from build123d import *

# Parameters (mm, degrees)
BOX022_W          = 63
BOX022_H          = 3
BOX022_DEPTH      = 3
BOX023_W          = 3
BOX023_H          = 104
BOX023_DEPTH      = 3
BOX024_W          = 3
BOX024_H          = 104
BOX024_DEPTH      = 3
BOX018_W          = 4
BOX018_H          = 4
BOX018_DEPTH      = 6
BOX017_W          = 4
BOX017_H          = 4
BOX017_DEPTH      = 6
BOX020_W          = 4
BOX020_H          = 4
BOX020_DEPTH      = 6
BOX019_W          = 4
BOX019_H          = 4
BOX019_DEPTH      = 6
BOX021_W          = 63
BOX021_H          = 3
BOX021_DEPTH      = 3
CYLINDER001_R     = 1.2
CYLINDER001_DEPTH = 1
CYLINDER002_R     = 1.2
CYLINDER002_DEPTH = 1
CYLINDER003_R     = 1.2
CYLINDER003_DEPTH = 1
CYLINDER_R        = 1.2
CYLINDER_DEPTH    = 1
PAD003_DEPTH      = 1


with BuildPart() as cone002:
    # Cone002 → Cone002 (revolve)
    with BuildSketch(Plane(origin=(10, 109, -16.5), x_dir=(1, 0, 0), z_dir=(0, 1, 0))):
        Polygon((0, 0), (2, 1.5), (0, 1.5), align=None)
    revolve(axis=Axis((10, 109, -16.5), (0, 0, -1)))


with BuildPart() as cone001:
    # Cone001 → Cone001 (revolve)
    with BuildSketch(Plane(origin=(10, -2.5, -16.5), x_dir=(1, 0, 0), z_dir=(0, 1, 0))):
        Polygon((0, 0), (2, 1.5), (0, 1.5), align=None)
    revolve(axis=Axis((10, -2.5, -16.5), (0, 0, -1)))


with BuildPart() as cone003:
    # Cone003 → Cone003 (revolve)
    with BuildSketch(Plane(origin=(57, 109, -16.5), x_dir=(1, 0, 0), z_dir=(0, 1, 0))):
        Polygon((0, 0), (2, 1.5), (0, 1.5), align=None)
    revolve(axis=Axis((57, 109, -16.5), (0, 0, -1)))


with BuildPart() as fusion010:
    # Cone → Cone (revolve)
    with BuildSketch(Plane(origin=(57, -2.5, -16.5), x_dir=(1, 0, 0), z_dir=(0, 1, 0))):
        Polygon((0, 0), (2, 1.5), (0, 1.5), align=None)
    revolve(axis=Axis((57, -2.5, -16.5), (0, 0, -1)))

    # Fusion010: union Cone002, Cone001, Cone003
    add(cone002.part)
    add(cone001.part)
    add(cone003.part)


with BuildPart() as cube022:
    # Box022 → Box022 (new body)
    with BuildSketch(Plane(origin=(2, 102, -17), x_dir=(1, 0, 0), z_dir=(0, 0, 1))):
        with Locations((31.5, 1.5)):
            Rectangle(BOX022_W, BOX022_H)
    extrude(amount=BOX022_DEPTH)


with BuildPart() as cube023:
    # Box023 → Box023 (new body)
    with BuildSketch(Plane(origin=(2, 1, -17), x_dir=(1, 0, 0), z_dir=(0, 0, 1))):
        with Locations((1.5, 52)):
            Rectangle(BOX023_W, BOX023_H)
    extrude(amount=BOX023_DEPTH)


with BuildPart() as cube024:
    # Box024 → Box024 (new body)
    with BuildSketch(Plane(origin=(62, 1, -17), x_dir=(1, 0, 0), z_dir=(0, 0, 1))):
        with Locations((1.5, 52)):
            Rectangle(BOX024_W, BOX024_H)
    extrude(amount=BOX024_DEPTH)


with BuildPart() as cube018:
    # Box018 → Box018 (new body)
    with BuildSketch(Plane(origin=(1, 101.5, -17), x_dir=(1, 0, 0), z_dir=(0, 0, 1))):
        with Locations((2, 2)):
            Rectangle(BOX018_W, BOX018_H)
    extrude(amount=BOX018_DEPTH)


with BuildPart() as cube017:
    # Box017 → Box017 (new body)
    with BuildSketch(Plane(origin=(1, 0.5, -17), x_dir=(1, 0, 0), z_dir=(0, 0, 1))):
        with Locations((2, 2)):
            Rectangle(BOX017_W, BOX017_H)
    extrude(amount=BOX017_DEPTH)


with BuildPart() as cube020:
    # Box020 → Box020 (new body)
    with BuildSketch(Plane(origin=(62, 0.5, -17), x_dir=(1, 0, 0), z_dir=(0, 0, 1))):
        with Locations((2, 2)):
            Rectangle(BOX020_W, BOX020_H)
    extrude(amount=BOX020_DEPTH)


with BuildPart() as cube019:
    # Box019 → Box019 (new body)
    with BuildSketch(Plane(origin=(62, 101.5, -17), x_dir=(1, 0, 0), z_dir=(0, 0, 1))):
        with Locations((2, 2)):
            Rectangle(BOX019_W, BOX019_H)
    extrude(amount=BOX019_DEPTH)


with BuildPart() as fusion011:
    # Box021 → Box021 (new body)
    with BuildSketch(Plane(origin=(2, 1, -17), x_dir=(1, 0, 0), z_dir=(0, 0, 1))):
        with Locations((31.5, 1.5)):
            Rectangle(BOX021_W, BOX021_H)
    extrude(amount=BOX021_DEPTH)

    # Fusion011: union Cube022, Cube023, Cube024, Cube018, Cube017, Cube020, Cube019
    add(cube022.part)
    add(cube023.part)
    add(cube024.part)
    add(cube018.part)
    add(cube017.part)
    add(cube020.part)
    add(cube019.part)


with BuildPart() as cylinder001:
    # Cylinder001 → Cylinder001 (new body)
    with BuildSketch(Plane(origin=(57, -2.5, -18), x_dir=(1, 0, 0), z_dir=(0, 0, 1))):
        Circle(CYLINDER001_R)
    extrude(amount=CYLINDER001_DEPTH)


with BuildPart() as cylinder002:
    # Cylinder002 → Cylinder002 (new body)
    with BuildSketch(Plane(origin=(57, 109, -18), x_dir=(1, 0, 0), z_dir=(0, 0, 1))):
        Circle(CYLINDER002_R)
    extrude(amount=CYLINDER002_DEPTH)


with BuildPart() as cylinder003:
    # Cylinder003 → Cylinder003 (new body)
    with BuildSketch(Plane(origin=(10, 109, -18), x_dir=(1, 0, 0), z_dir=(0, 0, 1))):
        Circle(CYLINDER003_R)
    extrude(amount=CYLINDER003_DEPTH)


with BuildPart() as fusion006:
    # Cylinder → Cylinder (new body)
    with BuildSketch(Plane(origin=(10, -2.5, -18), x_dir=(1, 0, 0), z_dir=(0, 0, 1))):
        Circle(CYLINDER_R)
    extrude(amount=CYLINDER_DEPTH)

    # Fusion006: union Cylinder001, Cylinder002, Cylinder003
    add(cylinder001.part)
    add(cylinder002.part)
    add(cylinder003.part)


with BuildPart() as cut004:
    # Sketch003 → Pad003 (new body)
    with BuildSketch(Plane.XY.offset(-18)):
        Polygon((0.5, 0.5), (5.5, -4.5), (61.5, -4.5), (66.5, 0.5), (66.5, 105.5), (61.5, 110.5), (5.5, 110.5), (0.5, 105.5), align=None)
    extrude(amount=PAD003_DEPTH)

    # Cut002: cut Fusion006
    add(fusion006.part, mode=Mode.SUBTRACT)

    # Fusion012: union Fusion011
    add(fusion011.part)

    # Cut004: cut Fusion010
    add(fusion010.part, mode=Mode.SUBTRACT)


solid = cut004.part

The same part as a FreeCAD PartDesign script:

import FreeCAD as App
import Part
import Sketcher

V = App.Vector
Q = App.Units.Quantity

doc = App.newDocument("Part")
body = doc.addObject("PartDesign::Body", "Body")

sketch1 = body.newObject("Sketcher::SketchObject", "Sketch")
sketch1.AttachmentSupport = (doc.getObject("XZ_Plane"), [""])
sketch1.MapMode = "FlatFace"
sketch1.AttachmentOffset = App.Placement(V(0, 0, -109), App.Rotation())
sketch1.addGeometry(Part.LineSegment(V(10, -16.5, 0), V(12, -18, 0)), False)
sketch1.addGeometry(Part.LineSegment(V(12, -18, 0), V(10, -18, 0)), False)
sketch1.addGeometry(Part.LineSegment(V(10, -18, 0), V(10, -16.5, 0)), False)
sketch1.addGeometry(Part.LineSegment(V(10, -16.5, 0), V(10, -18, 0)), True)
sketch1.addConstraint(Sketcher.Constraint("Coincident", 0, 2, 1, 1))
sketch1.addConstraint(Sketcher.Constraint("Coincident", 1, 2, 2, 1))
sketch1.addConstraint(Sketcher.Constraint("Coincident", 2, 2, 0, 1))
sketch1.addConstraint(Sketcher.Constraint("Horizontal", 1))
sketch1.addConstraint(Sketcher.Constraint("Vertical", 2))
sketch1.addConstraint(Sketcher.Constraint("Vertical", 3))
sketch1.addConstraint(Sketcher.Constraint("Coincident", 3, 1, 2, 2))
sketch1.addConstraint(Sketcher.Constraint("Horizontal", 0, 2, 3, 2))
sketch1.addConstraint(Sketcher.Constraint("DistanceX", 1, 2, 1, 1, Q("2 mm")))
sketch1.addConstraint(Sketcher.Constraint("DistanceY", 2, 1, 2, 2, Q("1.5 mm")))
sketch1.addConstraint(Sketcher.Constraint("DistanceX", -1, 1, 0, 2, Q("12 mm")))
sketch1.addConstraint(Sketcher.Constraint("DistanceY", 0, 2, -1, 1, Q("18 mm")))
revolution = body.newObject("PartDesign::Revolution", "Revolution")
revolution.Profile = sketch1
revolution.ReferenceAxis = (sketch1, ["Axis0"])
revolution.Angle = 360
body2 = doc.addObject("PartDesign::Body", "Body001")

sketch2 = body2.newObject("Sketcher::SketchObject", "Sketch001")
sketch2.AttachmentSupport = (doc.getObject("XZ_Plane001"), [""])
sketch2.MapMode = "FlatFace"
sketch2.AttachmentOffset = App.Placement(V(0, 0, 2.5), App.Rotation())
sketch2.addGeometry(Part.LineSegment(V(10, -16.5, 0), V(12, -18, 0)), False)
sketch2.addGeometry(Part.LineSegment(V(12, -18, 0), V(10, -18, 0)), False)
sketch2.addGeometry(Part.LineSegment(V(10, -18, 0), V(10, -16.5, 0)), False)
sketch2.addGeometry(Part.LineSegment(V(10, -16.5, 0), V(10, -18, 0)), True)
sketch2.addConstraint(Sketcher.Constraint("Coincident", 0, 2, 1, 1))
sketch2.addConstraint(Sketcher.Constraint("Coincident", 1, 2, 2, 1))
sketch2.addConstraint(Sketcher.Constraint("Coincident", 2, 2, 0, 1))
sketch2.addConstraint(Sketcher.Constraint("Horizontal", 1))
sketch2.addConstraint(Sketcher.Constraint("Vertical", 2))
sketch2.addConstraint(Sketcher.Constraint("Vertical", 3))
sketch2.addConstraint(Sketcher.Constraint("Coincident", 3, 1, 2, 2))
sketch2.addConstraint(Sketcher.Constraint("Horizontal", 0, 2, 3, 2))
sketch2.addConstraint(Sketcher.Constraint("DistanceX", 1, 2, 1, 1, Q("2 mm")))
sketch2.addConstraint(Sketcher.Constraint("DistanceY", 2, 1, 2, 2, Q("1.5 mm")))
sketch2.addConstraint(Sketcher.Constraint("DistanceX", -1, 1, 0, 2, Q("12 mm")))
sketch2.addConstraint(Sketcher.Constraint("DistanceY", 0, 2, -1, 1, Q("18 mm")))
revolution2 = body2.newObject("PartDesign::Revolution", "Revolution001")
revolution2.Profile = sketch2
revolution2.ReferenceAxis = (sketch2, ["Axis0"])
revolution2.Angle = 360
body3 = doc.addObject("PartDesign::Body", "Body002")

sketch3 = body3.newObject("Sketcher::SketchObject", "Sketch002")
sketch3.AttachmentSupport = (doc.getObject("XZ_Plane002"), [""])
sketch3.MapMode = "FlatFace"
sketch3.AttachmentOffset = App.Placement(V(0, 0, -109), App.Rotation())
sketch3.addGeometry(Part.LineSegment(V(57, -16.5, 0), V(59, -18, 0)), False)
sketch3.addGeometry(Part.LineSegment(V(59, -18, 0), V(57, -18, 0)), False)
sketch3.addGeometry(Part.LineSegment(V(57, -18, 0), V(57, -16.5, 0)), False)
sketch3.addGeometry(Part.LineSegment(V(57, -16.5, 0), V(57, -18, 0)), True)
sketch3.addConstraint(Sketcher.Constraint("Coincident", 0, 2, 1, 1))
sketch3.addConstraint(Sketcher.Constraint("Coincident", 1, 2, 2, 1))
sketch3.addConstraint(Sketcher.Constraint("Coincident", 2, 2, 0, 1))
sketch3.addConstraint(Sketcher.Constraint("Horizontal", 1))
sketch3.addConstraint(Sketcher.Constraint("Vertical", 2))
sketch3.addConstraint(Sketcher.Constraint("Vertical", 3))
sketch3.addConstraint(Sketcher.Constraint("Coincident", 3, 1, 2, 2))
sketch3.addConstraint(Sketcher.Constraint("Horizontal", 0, 2, 3, 2))
sketch3.addConstraint(Sketcher.Constraint("DistanceX", 1, 2, 1, 1, Q("2 mm")))
sketch3.addConstraint(Sketcher.Constraint("DistanceY", 2, 1, 2, 2, Q("1.5 mm")))
sketch3.addConstraint(Sketcher.Constraint("DistanceX", -1, 1, 0, 2, Q("59 mm")))
sketch3.addConstraint(Sketcher.Constraint("DistanceY", 0, 2, -1, 1, Q("18 mm")))
revolution3 = body3.newObject("PartDesign::Revolution", "Revolution002")
revolution3.Profile = sketch3
revolution3.ReferenceAxis = (sketch3, ["Axis0"])
revolution3.Angle = 360
body4 = doc.addObject("PartDesign::Body", "Body003")
body4.AllowCompound = True

sketch4 = body4.newObject("Sketcher::SketchObject", "Sketch003")
sketch4.AttachmentSupport = (doc.getObject("XZ_Plane003"), [""])
sketch4.MapMode = "FlatFace"
sketch4.AttachmentOffset = App.Placement(V(0, 0, 2.5), App.Rotation())
sketch4.addGeometry(Part.LineSegment(V(57, -16.5, 0), V(59, -18, 0)), False)
sketch4.addGeometry(Part.LineSegment(V(59, -18, 0), V(57, -18, 0)), False)
sketch4.addGeometry(Part.LineSegment(V(57, -18, 0), V(57, -16.5, 0)), False)
sketch4.addGeometry(Part.LineSegment(V(57, -16.5, 0), V(57, -18, 0)), True)
sketch4.addConstraint(Sketcher.Constraint("Coincident", 0, 2, 1, 1))
sketch4.addConstraint(Sketcher.Constraint("Coincident", 1, 2, 2, 1))
sketch4.addConstraint(Sketcher.Constraint("Coincident", 2, 2, 0, 1))
sketch4.addConstraint(Sketcher.Constraint("Horizontal", 1))
sketch4.addConstraint(Sketcher.Constraint("Vertical", 2))
sketch4.addConstraint(Sketcher.Constraint("Vertical", 3))
sketch4.addConstraint(Sketcher.Constraint("Coincident", 3, 1, 2, 2))
sketch4.addConstraint(Sketcher.Constraint("Horizontal", 0, 2, 3, 2))
sketch4.addConstraint(Sketcher.Constraint("DistanceX", 1, 2, 1, 1, Q("2 mm")))
sketch4.addConstraint(Sketcher.Constraint("DistanceY", 2, 1, 2, 2, Q("1.5 mm")))
sketch4.addConstraint(Sketcher.Constraint("DistanceX", -1, 1, 0, 2, Q("59 mm")))
sketch4.addConstraint(Sketcher.Constraint("DistanceY", 0, 2, -1, 1, Q("18 mm")))
revolution4 = body4.newObject("PartDesign::Revolution", "Revolution003")
revolution4.Profile = sketch4
revolution4.ReferenceAxis = (sketch4, ["Axis0"])
revolution4.Angle = 360
doc.recompute()

boolean = body4.newObject("PartDesign::Boolean", "Boolean")
boolean.Type = "Fuse"
boolean.addObjects([body])
doc.recompute()

boolean2 = body4.newObject("PartDesign::Boolean", "Boolean001")
boolean2.Type = "Fuse"
boolean2.addObjects([body2])
doc.recompute()

boolean3 = body4.newObject("PartDesign::Boolean", "Boolean002")
boolean3.Type = "Fuse"
boolean3.addObjects([body3])
body5 = doc.addObject("PartDesign::Body", "Body004")

sketch5 = body5.newObject("Sketcher::SketchObject", "Sketch004")
sketch5.AttachmentSupport = (doc.getObject("XY_Plane004"), [""])
sketch5.MapMode = "FlatFace"
sketch5.AttachmentOffset = App.Placement(V(0, 0, -17), App.Rotation())
sketch5.addGeometry(Part.LineSegment(V(2, 105, 0), V(2, 102, 0)), False)
sketch5.addGeometry(Part.LineSegment(V(2, 102, 0), V(65, 102, 0)), False)
sketch5.addGeometry(Part.LineSegment(V(65, 102, 0), V(65, 105, 0)), False)
sketch5.addGeometry(Part.LineSegment(V(65, 105, 0), V(2, 105, 0)), False)
sketch5.addConstraint(Sketcher.Constraint("Coincident", 0, 2, 1, 1))
sketch5.addConstraint(Sketcher.Constraint("Coincident", 1, 2, 2, 1))
sketch5.addConstraint(Sketcher.Constraint("Coincident", 2, 2, 3, 1))
sketch5.addConstraint(Sketcher.Constraint("Coincident", 3, 2, 0, 1))
sketch5.addConstraint(Sketcher.Constraint("Vertical", 0))
sketch5.addConstraint(Sketcher.Constraint("Horizontal", 1))
sketch5.addConstraint(Sketcher.Constraint("Vertical", 2))
sketch5.addConstraint(Sketcher.Constraint("Horizontal", 3))
sketch5.addConstraint(Sketcher.Constraint("DistanceX", 1, 1, 1, 2, Q("63 mm")))
sketch5.addConstraint(Sketcher.Constraint("DistanceY", 0, 2, 0, 1, Q("3 mm")))
sketch5.addConstraint(Sketcher.Constraint("DistanceX", -1, 1, 0, 2, Q("2 mm")))
sketch5.addConstraint(Sketcher.Constraint("DistanceY", -1, 1, 0, 2, Q("102 mm")))
pad1 = body5.newObject("PartDesign::Pad", "Pad")
pad1.Profile = sketch5
pad1.Length = 3
body6 = doc.addObject("PartDesign::Body", "Body005")

sketch6 = body6.newObject("Sketcher::SketchObject", "Sketch005")
sketch6.AttachmentSupport = (doc.getObject("XY_Plane005"), [""])
sketch6.MapMode = "FlatFace"
sketch6.AttachmentOffset = App.Placement(V(0, 0, -17), App.Rotation())
sketch6.addGeometry(Part.LineSegment(V(2, 105, 0), V(2, 1, 0)), False)
sketch6.addGeometry(Part.LineSegment(V(2, 1, 0), V(5, 1, 0)), False)
sketch6.addGeometry(Part.LineSegment(V(5, 1, 0), V(5, 105, 0)), False)
sketch6.addGeometry(Part.LineSegment(V(5, 105, 0), V(2, 105, 0)), False)
sketch6.addConstraint(Sketcher.Constraint("Coincident", 0, 2, 1, 1))
sketch6.addConstraint(Sketcher.Constraint("Coincident", 1, 2, 2, 1))
sketch6.addConstraint(Sketcher.Constraint("Coincident", 2, 2, 3, 1))
sketch6.addConstraint(Sketcher.Constraint("Coincident", 3, 2, 0, 1))
sketch6.addConstraint(Sketcher.Constraint("Vertical", 0))
sketch6.addConstraint(Sketcher.Constraint("Horizontal", 1))
sketch6.addConstraint(Sketcher.Constraint("Vertical", 2))
sketch6.addConstraint(Sketcher.Constraint("Horizontal", 3))
sketch6.addConstraint(Sketcher.Constraint("DistanceX", 1, 1, 1, 2, Q("3 mm")))
sketch6.addConstraint(Sketcher.Constraint("DistanceY", 0, 2, 0, 1, Q("104 mm")))
sketch6.addConstraint(Sketcher.Constraint("DistanceX", -1, 1, 0, 2, Q("2 mm")))
sketch6.addConstraint(Sketcher.Constraint("DistanceY", -1, 1, 0, 2, Q("1 mm")))
pad2 = body6.newObject("PartDesign::Pad", "Pad001")
pad2.Profile = sketch6
pad2.Length = 3
body7 = doc.addObject("PartDesign::Body", "Body006")

sketch7 = body7.newObject("Sketcher::SketchObject", "Sketch006")
sketch7.AttachmentSupport = (doc.getObject("XY_Plane006"), [""])
sketch7.MapMode = "FlatFace"
sketch7.AttachmentOffset = App.Placement(V(0, 0, -17), App.Rotation())
sketch7.addGeometry(Part.LineSegment(V(62, 105, 0), V(62, 1, 0)), False)
sketch7.addGeometry(Part.LineSegment(V(62, 1, 0), V(65, 1, 0)), False)
sketch7.addGeometry(Part.LineSegment(V(65, 1, 0), V(65, 105, 0)), False)
sketch7.addGeometry(Part.LineSegment(V(65, 105, 0), V(62, 105, 0)), False)
sketch7.addConstraint(Sketcher.Constraint("Coincident", 0, 2, 1, 1))
sketch7.addConstraint(Sketcher.Constraint("Coincident", 1, 2, 2, 1))
sketch7.addConstraint(Sketcher.Constraint("Coincident", 2, 2, 3, 1))
sketch7.addConstraint(Sketcher.Constraint("Coincident", 3, 2, 0, 1))
sketch7.addConstraint(Sketcher.Constraint("Vertical", 0))
sketch7.addConstraint(Sketcher.Constraint("Horizontal", 1))
sketch7.addConstraint(Sketcher.Constraint("Vertical", 2))
sketch7.addConstraint(Sketcher.Constraint("Horizontal", 3))
sketch7.addConstraint(Sketcher.Constraint("DistanceX", 1, 1, 1, 2, Q("3 mm")))
sketch7.addConstraint(Sketcher.Constraint("DistanceY", 0, 2, 0, 1, Q("104 mm")))
sketch7.addConstraint(Sketcher.Constraint("DistanceX", -1, 1, 0, 2, Q("62 mm")))
sketch7.addConstraint(Sketcher.Constraint("DistanceY", -1, 1, 0, 2, Q("1 mm")))
pad3 = body7.newObject("PartDesign::Pad", "Pad002")
pad3.Profile = sketch7
pad3.Length = 3
body8 = doc.addObject("PartDesign::Body", "Body007")

sketch8 = body8.newObject("Sketcher::SketchObject", "Sketch007")
sketch8.AttachmentSupport = (doc.getObject("XY_Plane007"), [""])
sketch8.MapMode = "FlatFace"
sketch8.AttachmentOffset = App.Placement(V(0, 0, -17), App.Rotation())
sketch8.addGeometry(Part.LineSegment(V(1, 105.5, 0), V(1, 101.5, 0)), False)
sketch8.addGeometry(Part.LineSegment(V(1, 101.5, 0), V(5, 101.5, 0)), False)
sketch8.addGeometry(Part.LineSegment(V(5, 101.5, 0), V(5, 105.5, 0)), False)
sketch8.addGeometry(Part.LineSegment(V(5, 105.5, 0), V(1, 105.5, 0)), False)
sketch8.addConstraint(Sketcher.Constraint("Coincident", 0, 2, 1, 1))
sketch8.addConstraint(Sketcher.Constraint("Coincident", 1, 2, 2, 1))
sketch8.addConstraint(Sketcher.Constraint("Coincident", 2, 2, 3, 1))
sketch8.addConstraint(Sketcher.Constraint("Coincident", 3, 2, 0, 1))
sketch8.addConstraint(Sketcher.Constraint("Vertical", 0))
sketch8.addConstraint(Sketcher.Constraint("Horizontal", 1))
sketch8.addConstraint(Sketcher.Constraint("Vertical", 2))
sketch8.addConstraint(Sketcher.Constraint("Horizontal", 3))
sketch8.addConstraint(Sketcher.Constraint("Equal", 3, 0))
sketch8.addConstraint(Sketcher.Constraint("DistanceX", 1, 1, 1, 2, Q("4 mm")))
sketch8.addConstraint(Sketcher.Constraint("DistanceX", -1, 1, 0, 2, Q("1 mm")))
sketch8.addConstraint(Sketcher.Constraint("DistanceY", -1, 1, 0, 2, Q("101.5 mm")))
pad4 = body8.newObject("PartDesign::Pad", "Pad003")
pad4.Profile = sketch8
pad4.Length = 6
body9 = doc.addObject("PartDesign::Body", "Body008")

sketch9 = body9.newObject("Sketcher::SketchObject", "Sketch008")
sketch9.AttachmentSupport = (doc.getObject("XY_Plane008"), [""])
sketch9.MapMode = "FlatFace"
sketch9.AttachmentOffset = App.Placement(V(0, 0, -17), App.Rotation())
sketch9.addGeometry(Part.LineSegment(V(1, 4.5, 0), V(1, 0.5, 0)), False)
sketch9.addGeometry(Part.LineSegment(V(1, 0.5, 0), V(5, 0.5, 0)), False)
sketch9.addGeometry(Part.LineSegment(V(5, 0.5, 0), V(5, 4.5, 0)), False)
sketch9.addGeometry(Part.LineSegment(V(5, 4.5, 0), V(1, 4.5, 0)), False)
sketch9.addConstraint(Sketcher.Constraint("Coincident", 0, 2, 1, 1))
sketch9.addConstraint(Sketcher.Constraint("Coincident", 1, 2, 2, 1))
sketch9.addConstraint(Sketcher.Constraint("Coincident", 2, 2, 3, 1))
sketch9.addConstraint(Sketcher.Constraint("Coincident", 3, 2, 0, 1))
sketch9.addConstraint(Sketcher.Constraint("Vertical", 0))
sketch9.addConstraint(Sketcher.Constraint("Horizontal", 1))
sketch9.addConstraint(Sketcher.Constraint("Vertical", 2))
sketch9.addConstraint(Sketcher.Constraint("Horizontal", 3))
sketch9.addConstraint(Sketcher.Constraint("Equal", 3, 0))
sketch9.addConstraint(Sketcher.Constraint("DistanceX", 1, 1, 1, 2, Q("4 mm")))
sketch9.addConstraint(Sketcher.Constraint("DistanceX", -1, 1, 0, 2, Q("1 mm")))
sketch9.addConstraint(Sketcher.Constraint("DistanceY", -1, 1, 0, 2, Q("0.5 mm")))
pad5 = body9.newObject("PartDesign::Pad", "Pad004")
pad5.Profile = sketch9
pad5.Length = 6
body10 = doc.addObject("PartDesign::Body", "Body009")

sketch10 = body10.newObject("Sketcher::SketchObject", "Sketch009")
sketch10.AttachmentSupport = (doc.getObject("XY_Plane009"), [""])
sketch10.MapMode = "FlatFace"
sketch10.AttachmentOffset = App.Placement(V(0, 0, -17), App.Rotation())
sketch10.addGeometry(Part.LineSegment(V(62, 4.5, 0), V(62, 0.5, 0)), False)
sketch10.addGeometry(Part.LineSegment(V(62, 0.5, 0), V(66, 0.5, 0)), False)
sketch10.addGeometry(Part.LineSegment(V(66, 0.5, 0), V(66, 4.5, 0)), False)
sketch10.addGeometry(Part.LineSegment(V(66, 4.5, 0), V(62, 4.5, 0)), False)
sketch10.addConstraint(Sketcher.Constraint("Coincident", 0, 2, 1, 1))
sketch10.addConstraint(Sketcher.Constraint("Coincident", 1, 2, 2, 1))
sketch10.addConstraint(Sketcher.Constraint("Coincident", 2, 2, 3, 1))
sketch10.addConstraint(Sketcher.Constraint("Coincident", 3, 2, 0, 1))
sketch10.addConstraint(Sketcher.Constraint("Vertical", 0))
sketch10.addConstraint(Sketcher.Constraint("Horizontal", 1))
sketch10.addConstraint(Sketcher.Constraint("Vertical", 2))
sketch10.addConstraint(Sketcher.Constraint("Horizontal", 3))
sketch10.addConstraint(Sketcher.Constraint("Equal", 3, 0))
sketch10.addConstraint(Sketcher.Constraint("DistanceX", 1, 1, 1, 2, Q("4 mm")))
sketch10.addConstraint(Sketcher.Constraint("DistanceX", -1, 1, 0, 2, Q("62 mm")))
sketch10.addConstraint(Sketcher.Constraint("DistanceY", -1, 1, 0, 2, Q("0.5 mm")))
pad6 = body10.newObject("PartDesign::Pad", "Pad005")
pad6.Profile = sketch10
pad6.Length = 6
body11 = doc.addObject("PartDesign::Body", "Body010")

sketch11 = body11.newObject("Sketcher::SketchObject", "Sketch010")
sketch11.AttachmentSupport = (doc.getObject("XY_Plane010"), [""])
sketch11.MapMode = "FlatFace"
sketch11.AttachmentOffset = App.Placement(V(0, 0, -17), App.Rotation())
sketch11.addGeometry(Part.LineSegment(V(62, 105.5, 0), V(62, 101.5, 0)), False)
sketch11.addGeometry(Part.LineSegment(V(62, 101.5, 0), V(66, 101.5, 0)), False)
sketch11.addGeometry(Part.LineSegment(V(66, 101.5, 0), V(66, 105.5, 0)), False)
sketch11.addGeometry(Part.LineSegment(V(66, 105.5, 0), V(62, 105.5, 0)), False)
sketch11.addConstraint(Sketcher.Constraint("Coincident", 0, 2, 1, 1))
sketch11.addConstraint(Sketcher.Constraint("Coincident", 1, 2, 2, 1))
sketch11.addConstraint(Sketcher.Constraint("Coincident", 2, 2, 3, 1))
sketch11.addConstraint(Sketcher.Constraint("Coincident", 3, 2, 0, 1))
sketch11.addConstraint(Sketcher.Constraint("Vertical", 0))
sketch11.addConstraint(Sketcher.Constraint("Horizontal", 1))
sketch11.addConstraint(Sketcher.Constraint("Vertical", 2))
sketch11.addConstraint(Sketcher.Constraint("Horizontal", 3))
sketch11.addConstraint(Sketcher.Constraint("Equal", 3, 0))
sketch11.addConstraint(Sketcher.Constraint("DistanceX", 1, 1, 1, 2, Q("4 mm")))
sketch11.addConstraint(Sketcher.Constraint("DistanceX", -1, 1, 0, 2, Q("62 mm")))
sketch11.addConstraint(Sketcher.Constraint("DistanceY", -1, 1, 0, 2, Q("101.5 mm")))
pad7 = body11.newObject("PartDesign::Pad", "Pad006")
pad7.Profile = sketch11
pad7.Length = 6
body12 = doc.addObject("PartDesign::Body", "Body011")
body12.AllowCompound = True

sketch12 = body12.newObject("Sketcher::SketchObject", "Sketch011")
sketch12.AttachmentSupport = (doc.getObject("XY_Plane011"), [""])
sketch12.MapMode = "FlatFace"
sketch12.AttachmentOffset = App.Placement(V(0, 0, -17), App.Rotation())
sketch12.addGeometry(Part.LineSegment(V(2, 4, 0), V(2, 1, 0)), False)
sketch12.addGeometry(Part.LineSegment(V(2, 1, 0), V(65, 1, 0)), False)
sketch12.addGeometry(Part.LineSegment(V(65, 1, 0), V(65, 4, 0)), False)
sketch12.addGeometry(Part.LineSegment(V(65, 4, 0), V(2, 4, 0)), False)
sketch12.addConstraint(Sketcher.Constraint("Coincident", 0, 2, 1, 1))
sketch12.addConstraint(Sketcher.Constraint("Coincident", 1, 2, 2, 1))
sketch12.addConstraint(Sketcher.Constraint("Coincident", 2, 2, 3, 1))
sketch12.addConstraint(Sketcher.Constraint("Coincident", 3, 2, 0, 1))
sketch12.addConstraint(Sketcher.Constraint("Vertical", 0))
sketch12.addConstraint(Sketcher.Constraint("Horizontal", 1))
sketch12.addConstraint(Sketcher.Constraint("Vertical", 2))
sketch12.addConstraint(Sketcher.Constraint("Horizontal", 3))
sketch12.addConstraint(Sketcher.Constraint("DistanceX", 1, 1, 1, 2, Q("63 mm")))
sketch12.addConstraint(Sketcher.Constraint("DistanceY", 0, 2, 0, 1, Q("3 mm")))
sketch12.addConstraint(Sketcher.Constraint("DistanceX", -1, 1, 0, 2, Q("2 mm")))
sketch12.addConstraint(Sketcher.Constraint("DistanceY", -1, 1, 0, 2, Q("1 mm")))
pad8 = body12.newObject("PartDesign::Pad", "Pad007")
pad8.Profile = sketch12
pad8.Length = 3
doc.recompute()

boolean4 = body12.newObject("PartDesign::Boolean", "Boolean003")
boolean4.Type = "Fuse"
boolean4.addObjects([body5])
doc.recompute()

boolean5 = body12.newObject("PartDesign::Boolean", "Boolean004")
boolean5.Type = "Fuse"
boolean5.addObjects([body6])
doc.recompute()

boolean6 = body12.newObject("PartDesign::Boolean", "Boolean005")
boolean6.Type = "Fuse"
boolean6.addObjects([body7])
doc.recompute()

boolean7 = body12.newObject("PartDesign::Boolean", "Boolean006")
boolean7.Type = "Fuse"
boolean7.addObjects([body8])
doc.recompute()

boolean8 = body12.newObject("PartDesign::Boolean", "Boolean007")
boolean8.Type = "Fuse"
boolean8.addObjects([body9])
doc.recompute()

boolean9 = body12.newObject("PartDesign::Boolean", "Boolean008")
boolean9.Type = "Fuse"
boolean9.addObjects([body10])
doc.recompute()

boolean10 = body12.newObject("PartDesign::Boolean", "Boolean009")
boolean10.Type = "Fuse"
boolean10.addObjects([body11])
body13 = doc.addObject("PartDesign::Body", "Body012")

sketch13 = body13.newObject("Sketcher::SketchObject", "Sketch012")
sketch13.AttachmentSupport = (doc.getObject("XY_Plane012"), [""])
sketch13.MapMode = "FlatFace"
sketch13.AttachmentOffset = App.Placement(V(0, 0, -18), App.Rotation())
sketch13.addGeometry(Part.Circle(V(57, -2.5, 0), V(0, 0, 1), 1.2), False)
sketch13.addConstraint(Sketcher.Constraint("Diameter", 0, Q("2.4 mm")))
sketch13.addConstraint(Sketcher.Constraint("DistanceX", -1, 1, 0, 3, Q("57 mm")))
sketch13.addConstraint(Sketcher.Constraint("DistanceY", 0, 3, -1, 1, Q("2.5 mm")))
pad9 = body13.newObject("PartDesign::Pad", "Pad008")
pad9.Profile = sketch13
pad9.Length = 1
body14 = doc.addObject("PartDesign::Body", "Body013")

sketch14 = body14.newObject("Sketcher::SketchObject", "Sketch013")
sketch14.AttachmentSupport = (doc.getObject("XY_Plane013"), [""])
sketch14.MapMode = "FlatFace"
sketch14.AttachmentOffset = App.Placement(V(0, 0, -18), App.Rotation())
sketch14.addGeometry(Part.Circle(V(57, 109, 0), V(0, 0, 1), 1.2), False)
sketch14.addConstraint(Sketcher.Constraint("Diameter", 0, Q("2.4 mm")))
sketch14.addConstraint(Sketcher.Constraint("DistanceX", -1, 1, 0, 3, Q("57 mm")))
sketch14.addConstraint(Sketcher.Constraint("DistanceY", -1, 1, 0, 3, Q("109 mm")))
pad10 = body14.newObject("PartDesign::Pad", "Pad009")
pad10.Profile = sketch14
pad10.Length = 1
body15 = doc.addObject("PartDesign::Body", "Body014")

sketch15 = body15.newObject("Sketcher::SketchObject", "Sketch014")
sketch15.AttachmentSupport = (doc.getObject("XY_Plane014"), [""])
sketch15.MapMode = "FlatFace"
sketch15.AttachmentOffset = App.Placement(V(0, 0, -18), App.Rotation())
sketch15.addGeometry(Part.Circle(V(10, 109, 0), V(0, 0, 1), 1.2), False)
sketch15.addConstraint(Sketcher.Constraint("Diameter", 0, Q("2.4 mm")))
sketch15.addConstraint(Sketcher.Constraint("DistanceX", -1, 1, 0, 3, Q("10 mm")))
sketch15.addConstraint(Sketcher.Constraint("DistanceY", -1, 1, 0, 3, Q("109 mm")))
pad11 = body15.newObject("PartDesign::Pad", "Pad010")
pad11.Profile = sketch15
pad11.Length = 1
body16 = doc.addObject("PartDesign::Body", "Body015")
body16.AllowCompound = True

sketch16 = body16.newObject("Sketcher::SketchObject", "Sketch015")
sketch16.AttachmentSupport = (doc.getObject("XY_Plane015"), [""])
sketch16.MapMode = "FlatFace"
sketch16.AttachmentOffset = App.Placement(V(0, 0, -18), App.Rotation())
sketch16.addGeometry(Part.Circle(V(10, -2.5, 0), V(0, 0, 1), 1.2), False)
sketch16.addConstraint(Sketcher.Constraint("Diameter", 0, Q("2.4 mm")))
sketch16.addConstraint(Sketcher.Constraint("DistanceX", -1, 1, 0, 3, Q("10 mm")))
sketch16.addConstraint(Sketcher.Constraint("DistanceY", 0, 3, -1, 1, Q("2.5 mm")))
pad12 = body16.newObject("PartDesign::Pad", "Pad011")
pad12.Profile = sketch16
pad12.Length = 1
doc.recompute()

boolean11 = body16.newObject("PartDesign::Boolean", "Boolean010")
boolean11.Type = "Fuse"
boolean11.addObjects([body13])
doc.recompute()

boolean12 = body16.newObject("PartDesign::Boolean", "Boolean011")
boolean12.Type = "Fuse"
boolean12.addObjects([body14])
doc.recompute()

boolean13 = body16.newObject("PartDesign::Boolean", "Boolean012")
boolean13.Type = "Fuse"
boolean13.addObjects([body15])
body17 = doc.addObject("PartDesign::Body", "Body016")

sketch17 = body17.newObject("Sketcher::SketchObject", "Sketch016")
sketch17.AttachmentSupport = (doc.getObject("XY_Plane016"), [""])
sketch17.MapMode = "FlatFace"
sketch17.AttachmentOffset = App.Placement(V(0, 0, -18), App.Rotation())
sketch17.addGeometry(Part.LineSegment(V(0.5, 0.5, 0), V(5.5, -4.5, 0)), False)
sketch17.addGeometry(Part.LineSegment(V(5.5, -4.5, 0), V(61.5, -4.5, 0)), False)
sketch17.addGeometry(Part.LineSegment(V(61.5, -4.5, 0), V(66.5, 0.5, 0)), False)
sketch17.addGeometry(Part.LineSegment(V(66.5, 0.5, 0), V(66.5, 105.5, 0)), False)
sketch17.addGeometry(Part.LineSegment(V(66.5, 105.5, 0), V(61.5, 110.5, 0)), False)
sketch17.addGeometry(Part.LineSegment(V(61.5, 110.5, 0), V(5.5, 110.5, 0)), False)
sketch17.addGeometry(Part.LineSegment(V(5.5, 110.5, 0), V(0.5, 105.5, 0)), False)
sketch17.addGeometry(Part.LineSegment(V(0.5, 105.5, 0), V(0.5, 0.5, 0)), False)
sketch17.addConstraint(Sketcher.Constraint("Coincident", 0, 2, 1, 1))
sketch17.addConstraint(Sketcher.Constraint("Coincident", 1, 2, 2, 1))
sketch17.addConstraint(Sketcher.Constraint("Coincident", 2, 2, 3, 1))
sketch17.addConstraint(Sketcher.Constraint("Coincident", 3, 2, 4, 1))
sketch17.addConstraint(Sketcher.Constraint("Coincident", 4, 2, 5, 1))
sketch17.addConstraint(Sketcher.Constraint("Coincident", 5, 2, 6, 1))
sketch17.addConstraint(Sketcher.Constraint("Coincident", 6, 2, 7, 1))
sketch17.addConstraint(Sketcher.Constraint("Coincident", 7, 2, 0, 1))
sketch17.addConstraint(Sketcher.Constraint("Horizontal", 1))
sketch17.addConstraint(Sketcher.Constraint("Vertical", 3))
sketch17.addConstraint(Sketcher.Constraint("Horizontal", 5))
sketch17.addConstraint(Sketcher.Constraint("Vertical", 7))
sketch17.addConstraint(Sketcher.Constraint("Perpendicular", 0, 2))
sketch17.addConstraint(Sketcher.Constraint("Perpendicular", 2, 4))
sketch17.addConstraint(Sketcher.Constraint("Perpendicular", 4, 6))
sketch17.addConstraint(Sketcher.Constraint("Horizontal", 3, 2, 6, 2))
sketch17.addConstraint(Sketcher.Constraint("Horizontal", 2, 2, 7, 2))
sketch17.addConstraint(Sketcher.Constraint("Vertical", 1, 2, 4, 2))
sketch17.addConstraint(Sketcher.Constraint("Vertical", 0, 2, 5, 2))
sketch17.addConstraint(Sketcher.Constraint("DistanceX", 1, 1, 1, 2, Q("56 mm")))
sketch17.addConstraint(Sketcher.Constraint("DistanceY", 3, 1, 3, 2, Q("105 mm")))
sketch17.addConstraint(Sketcher.Constraint("DistanceX", 1, 2, 2, 2, Q("5 mm")))
sketch17.addConstraint(Sketcher.Constraint("DistanceX", -1, 1, 0, 2, Q("5.5 mm")))
sketch17.addConstraint(Sketcher.Constraint("DistanceY", 0, 2, -1, 1, Q("4.5 mm")))
pad13 = body17.newObject("PartDesign::Pad", "Pad012")
pad13.Profile = sketch17
pad13.Length = 1
doc.recompute()

boolean14 = body17.newObject("PartDesign::Boolean", "Boolean013")
boolean14.Type = "Cut"
boolean14.addObjects([body16])
doc.recompute()

boolean15 = body17.newObject("PartDesign::Boolean", "Boolean014")
boolean15.Type = "Fuse"
boolean15.addObjects([body12])
doc.recompute()

boolean16 = body17.newObject("PartDesign::Boolean", "Boolean015")
boolean16.Type = "Cut"
boolean16.addObjects([body4])

doc.recompute()
